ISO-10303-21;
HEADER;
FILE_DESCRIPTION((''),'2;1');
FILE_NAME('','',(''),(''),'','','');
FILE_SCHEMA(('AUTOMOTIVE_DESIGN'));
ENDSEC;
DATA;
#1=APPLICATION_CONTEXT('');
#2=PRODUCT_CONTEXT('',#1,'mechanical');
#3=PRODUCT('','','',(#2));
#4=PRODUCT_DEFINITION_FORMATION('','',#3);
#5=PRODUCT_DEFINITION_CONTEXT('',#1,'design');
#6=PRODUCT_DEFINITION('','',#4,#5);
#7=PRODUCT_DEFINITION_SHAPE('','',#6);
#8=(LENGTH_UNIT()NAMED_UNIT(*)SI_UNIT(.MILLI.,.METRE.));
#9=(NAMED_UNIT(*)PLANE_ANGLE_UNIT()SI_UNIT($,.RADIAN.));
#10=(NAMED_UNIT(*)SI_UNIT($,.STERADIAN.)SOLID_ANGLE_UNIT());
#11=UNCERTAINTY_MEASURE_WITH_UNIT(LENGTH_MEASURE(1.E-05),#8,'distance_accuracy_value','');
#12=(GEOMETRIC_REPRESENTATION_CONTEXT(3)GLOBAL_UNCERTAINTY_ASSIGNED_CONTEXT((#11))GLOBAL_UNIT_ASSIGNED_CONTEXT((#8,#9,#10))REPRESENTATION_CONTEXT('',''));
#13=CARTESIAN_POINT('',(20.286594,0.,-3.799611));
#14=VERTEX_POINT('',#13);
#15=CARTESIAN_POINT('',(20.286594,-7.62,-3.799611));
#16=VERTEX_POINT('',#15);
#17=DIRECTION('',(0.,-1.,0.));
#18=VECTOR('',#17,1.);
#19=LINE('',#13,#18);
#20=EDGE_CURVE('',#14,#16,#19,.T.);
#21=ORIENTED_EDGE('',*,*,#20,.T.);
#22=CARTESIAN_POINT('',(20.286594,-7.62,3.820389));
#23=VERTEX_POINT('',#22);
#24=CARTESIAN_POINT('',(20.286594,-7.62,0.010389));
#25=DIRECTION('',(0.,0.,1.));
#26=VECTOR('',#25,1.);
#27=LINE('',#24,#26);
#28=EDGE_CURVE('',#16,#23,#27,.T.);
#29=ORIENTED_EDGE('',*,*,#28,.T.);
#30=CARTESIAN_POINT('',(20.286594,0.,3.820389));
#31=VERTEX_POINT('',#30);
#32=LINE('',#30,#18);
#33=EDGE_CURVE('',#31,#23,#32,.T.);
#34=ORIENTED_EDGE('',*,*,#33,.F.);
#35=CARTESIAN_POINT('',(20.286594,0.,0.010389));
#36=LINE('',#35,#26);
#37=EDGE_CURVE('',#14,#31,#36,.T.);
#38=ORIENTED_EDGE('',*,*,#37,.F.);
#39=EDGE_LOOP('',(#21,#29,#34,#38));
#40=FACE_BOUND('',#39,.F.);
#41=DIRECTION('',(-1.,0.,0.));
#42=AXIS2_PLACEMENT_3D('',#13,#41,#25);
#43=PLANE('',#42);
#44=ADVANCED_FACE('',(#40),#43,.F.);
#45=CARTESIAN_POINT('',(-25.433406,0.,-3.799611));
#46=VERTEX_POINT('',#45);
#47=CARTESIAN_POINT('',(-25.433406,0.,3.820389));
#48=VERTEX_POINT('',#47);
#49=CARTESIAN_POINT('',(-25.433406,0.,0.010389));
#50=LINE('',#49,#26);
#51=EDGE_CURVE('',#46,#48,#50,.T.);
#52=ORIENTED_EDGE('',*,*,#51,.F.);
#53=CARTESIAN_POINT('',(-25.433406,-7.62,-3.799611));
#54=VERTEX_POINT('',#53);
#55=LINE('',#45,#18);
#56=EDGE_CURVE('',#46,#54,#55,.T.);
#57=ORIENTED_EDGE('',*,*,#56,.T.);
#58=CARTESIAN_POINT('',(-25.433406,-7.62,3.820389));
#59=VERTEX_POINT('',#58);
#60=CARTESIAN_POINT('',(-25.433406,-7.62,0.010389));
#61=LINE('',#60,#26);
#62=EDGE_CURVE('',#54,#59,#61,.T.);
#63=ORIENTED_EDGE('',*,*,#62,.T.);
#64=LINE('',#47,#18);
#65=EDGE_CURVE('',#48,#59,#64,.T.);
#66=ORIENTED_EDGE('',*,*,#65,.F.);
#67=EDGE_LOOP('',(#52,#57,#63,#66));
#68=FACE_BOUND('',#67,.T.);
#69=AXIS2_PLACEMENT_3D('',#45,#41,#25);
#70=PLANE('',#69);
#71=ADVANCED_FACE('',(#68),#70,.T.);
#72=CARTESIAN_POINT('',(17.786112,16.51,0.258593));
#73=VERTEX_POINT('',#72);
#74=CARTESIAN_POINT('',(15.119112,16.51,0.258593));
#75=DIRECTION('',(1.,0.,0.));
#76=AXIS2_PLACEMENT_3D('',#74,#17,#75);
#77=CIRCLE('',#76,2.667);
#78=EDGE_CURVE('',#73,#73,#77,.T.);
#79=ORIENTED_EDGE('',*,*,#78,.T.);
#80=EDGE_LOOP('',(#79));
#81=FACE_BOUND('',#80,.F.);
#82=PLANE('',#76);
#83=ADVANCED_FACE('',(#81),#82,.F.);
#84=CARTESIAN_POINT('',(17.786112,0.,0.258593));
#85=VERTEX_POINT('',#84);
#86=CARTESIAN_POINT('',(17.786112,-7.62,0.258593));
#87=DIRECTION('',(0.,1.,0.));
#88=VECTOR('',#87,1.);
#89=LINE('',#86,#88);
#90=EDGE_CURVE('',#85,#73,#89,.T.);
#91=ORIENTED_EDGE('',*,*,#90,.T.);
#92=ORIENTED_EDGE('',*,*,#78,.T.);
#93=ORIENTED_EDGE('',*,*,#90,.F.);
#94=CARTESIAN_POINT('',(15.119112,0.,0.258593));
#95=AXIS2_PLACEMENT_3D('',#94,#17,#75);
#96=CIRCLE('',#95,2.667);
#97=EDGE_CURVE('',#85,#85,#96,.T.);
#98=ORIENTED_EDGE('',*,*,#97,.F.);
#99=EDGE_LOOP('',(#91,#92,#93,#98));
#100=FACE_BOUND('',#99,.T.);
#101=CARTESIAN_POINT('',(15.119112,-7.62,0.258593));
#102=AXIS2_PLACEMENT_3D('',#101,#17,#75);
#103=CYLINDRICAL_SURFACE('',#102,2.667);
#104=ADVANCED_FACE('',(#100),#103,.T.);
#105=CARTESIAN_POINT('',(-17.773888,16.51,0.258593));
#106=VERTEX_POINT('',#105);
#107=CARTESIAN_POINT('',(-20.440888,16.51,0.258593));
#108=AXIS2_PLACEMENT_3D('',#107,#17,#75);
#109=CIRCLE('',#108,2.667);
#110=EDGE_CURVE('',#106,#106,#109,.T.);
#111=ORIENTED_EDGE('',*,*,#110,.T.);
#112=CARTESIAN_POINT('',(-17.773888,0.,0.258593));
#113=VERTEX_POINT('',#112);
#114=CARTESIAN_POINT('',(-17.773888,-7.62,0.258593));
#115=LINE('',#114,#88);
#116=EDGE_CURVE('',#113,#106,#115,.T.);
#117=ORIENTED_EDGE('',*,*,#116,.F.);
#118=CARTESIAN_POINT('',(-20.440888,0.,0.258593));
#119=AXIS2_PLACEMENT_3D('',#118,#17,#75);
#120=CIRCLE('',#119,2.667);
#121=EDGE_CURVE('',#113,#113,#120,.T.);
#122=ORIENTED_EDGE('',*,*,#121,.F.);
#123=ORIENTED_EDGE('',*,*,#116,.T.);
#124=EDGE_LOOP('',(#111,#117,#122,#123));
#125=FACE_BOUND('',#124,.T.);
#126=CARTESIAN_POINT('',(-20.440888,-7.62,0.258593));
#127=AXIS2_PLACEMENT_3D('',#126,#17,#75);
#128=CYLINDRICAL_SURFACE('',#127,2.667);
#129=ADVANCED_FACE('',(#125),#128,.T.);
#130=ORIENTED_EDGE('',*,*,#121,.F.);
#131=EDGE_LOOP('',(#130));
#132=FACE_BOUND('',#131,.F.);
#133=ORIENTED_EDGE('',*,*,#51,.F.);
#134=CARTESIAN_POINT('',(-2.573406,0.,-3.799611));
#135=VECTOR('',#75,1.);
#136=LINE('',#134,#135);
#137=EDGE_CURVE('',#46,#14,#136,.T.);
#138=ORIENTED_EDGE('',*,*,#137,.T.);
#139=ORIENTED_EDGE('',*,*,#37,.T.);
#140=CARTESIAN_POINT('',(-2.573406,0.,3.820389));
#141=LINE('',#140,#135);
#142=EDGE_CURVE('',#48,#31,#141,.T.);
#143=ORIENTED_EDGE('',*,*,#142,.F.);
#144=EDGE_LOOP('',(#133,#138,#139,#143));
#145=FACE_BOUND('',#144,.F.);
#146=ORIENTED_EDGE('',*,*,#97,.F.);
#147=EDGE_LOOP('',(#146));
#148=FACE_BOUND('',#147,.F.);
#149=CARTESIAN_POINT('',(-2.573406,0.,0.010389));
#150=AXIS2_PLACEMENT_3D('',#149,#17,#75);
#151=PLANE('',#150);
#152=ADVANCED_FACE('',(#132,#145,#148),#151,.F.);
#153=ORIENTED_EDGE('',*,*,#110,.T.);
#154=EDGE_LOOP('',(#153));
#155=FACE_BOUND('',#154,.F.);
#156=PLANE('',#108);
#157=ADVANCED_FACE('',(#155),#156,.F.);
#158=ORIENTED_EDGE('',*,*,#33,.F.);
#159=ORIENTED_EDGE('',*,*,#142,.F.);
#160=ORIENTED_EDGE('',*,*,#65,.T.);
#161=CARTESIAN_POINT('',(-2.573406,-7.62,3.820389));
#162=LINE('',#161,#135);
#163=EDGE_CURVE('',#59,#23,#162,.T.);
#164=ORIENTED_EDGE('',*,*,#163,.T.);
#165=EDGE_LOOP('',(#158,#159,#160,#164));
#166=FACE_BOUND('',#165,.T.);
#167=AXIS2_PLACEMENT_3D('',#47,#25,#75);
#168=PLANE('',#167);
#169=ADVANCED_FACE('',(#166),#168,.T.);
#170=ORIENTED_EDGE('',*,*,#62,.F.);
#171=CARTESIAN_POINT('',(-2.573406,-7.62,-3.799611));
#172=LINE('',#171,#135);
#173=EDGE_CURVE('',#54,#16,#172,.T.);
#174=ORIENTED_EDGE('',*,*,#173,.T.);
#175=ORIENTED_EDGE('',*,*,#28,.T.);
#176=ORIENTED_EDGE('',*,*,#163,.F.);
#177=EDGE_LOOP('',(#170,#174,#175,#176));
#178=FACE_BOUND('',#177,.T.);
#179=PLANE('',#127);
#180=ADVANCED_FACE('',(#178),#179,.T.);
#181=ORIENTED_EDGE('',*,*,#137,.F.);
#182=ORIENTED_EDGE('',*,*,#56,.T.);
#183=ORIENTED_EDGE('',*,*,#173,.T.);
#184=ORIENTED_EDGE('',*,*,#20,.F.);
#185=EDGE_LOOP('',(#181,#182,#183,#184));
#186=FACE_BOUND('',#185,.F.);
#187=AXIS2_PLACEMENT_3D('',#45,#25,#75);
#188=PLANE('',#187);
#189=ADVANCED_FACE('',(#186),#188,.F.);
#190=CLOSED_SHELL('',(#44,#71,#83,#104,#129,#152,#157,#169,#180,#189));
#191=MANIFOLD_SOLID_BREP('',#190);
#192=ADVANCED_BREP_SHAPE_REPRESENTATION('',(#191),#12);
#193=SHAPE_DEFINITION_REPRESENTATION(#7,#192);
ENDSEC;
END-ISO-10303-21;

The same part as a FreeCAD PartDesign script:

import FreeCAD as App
import Part
import Sketcher
from FreeCAD import Vector
Q = App.Units.Quantity


def add_polygon(sketch, points):
    """Adds a closed chain of lines whose ends are joined by coincident constraints."""
    first, n = sketch.GeometryCount, len(points)
    for a, b in zip(points, points[1:] + points[:1]):
        sketch.addGeometry(Part.LineSegment(App.Vector(*a, 0), App.Vector(*b, 0)), False)
    for i in range(n):
        sketch.addConstraint(Sketcher.Constraint("Coincident", first + i, 2, first + (i + 1) % n, 1))

doc = App.newDocument("Part")
body = doc.addObject("PartDesign::Body", "Body")

# Sketch on XZ plane
sketch1 = body.newObject("Sketcher::SketchObject", "Sketch")
sketch1.AttachmentSupport = (doc.getObject("XZ_Plane"), [""])
sketch1.MapMode = "FlatFace"
add_polygon(sketch1, [(-25, 4), (-25, -4), (20, -4), (20, 4)])  # lines 0-3
sketch1.addConstraint([
    Sketcher.Constraint("Vertical", 0),
    Sketcher.Constraint("Horizontal", 1),
    Sketcher.Constraint("Vertical", 2),
    Sketcher.Constraint("Horizontal", 3),
    Sketcher.Constraint("DistanceX", 1, 1, 1, 2, Q("1.8 in")),
    Sketcher.Constraint("DistanceY", 0, 2, 0, 1, Q("0.3 in")),
    Sketcher.Constraint("DistanceY", 0, 2, -1, 1, Q("3.799611 mm")),
    Sketcher.Constraint("DistanceX", 0, 2, -1, 1, Q("25.433406 mm")),
])
pad1 = body.newObject("PartDesign::Pad", "Pad")
pad1.Profile = sketch1
pad1.Length = Q("0.3 in")

# Sketch on XZ plane
sketch2 = body.newObject("Sketcher::SketchObject", "Sketch001")
sketch2.AttachmentSupport = (doc.getObject("XZ_Plane"), [""])
sketch2.MapMode = "FlatFace"
sketch2.AttachmentOffset = App.Placement(Vector(0, 0, 0.3 * 25.4), App.Rotation())
sketch2.addGeometry([
    Part.Circle(Vector(-20.4, 0.3, 0), Vector(0, 0, 1), 2.7),
    Part.Circle(Vector(15.1, 0.3, 0), Vector(0, 0, 1), 2.7),
], False)
sketch2.addConstraint([
    Sketcher.Constraint("Equal", 0, 1),
    Sketcher.Constraint("Horizontal", 0, 3, 1, 3),
    Sketcher.Constraint("Diameter", 0, Q("0.21 in")),
    Sketcher.Constraint("DistanceX", 0, 3, 1, 3, Q("1.4 in")),
    Sketcher.Constraint("DistanceX", 0, 3, -1, 1, Q("20.440888 mm")),
    Sketcher.Constraint("DistanceY", -1, 1, 0, 3, Q("0.258593 mm")),
])
pad2 = body.newObject("PartDesign::Pad", "Pad001")
pad2.Profile = sketch2
pad2.Length = Q("0.95 in")
pad2.Reversed = True

doc.recompute()
